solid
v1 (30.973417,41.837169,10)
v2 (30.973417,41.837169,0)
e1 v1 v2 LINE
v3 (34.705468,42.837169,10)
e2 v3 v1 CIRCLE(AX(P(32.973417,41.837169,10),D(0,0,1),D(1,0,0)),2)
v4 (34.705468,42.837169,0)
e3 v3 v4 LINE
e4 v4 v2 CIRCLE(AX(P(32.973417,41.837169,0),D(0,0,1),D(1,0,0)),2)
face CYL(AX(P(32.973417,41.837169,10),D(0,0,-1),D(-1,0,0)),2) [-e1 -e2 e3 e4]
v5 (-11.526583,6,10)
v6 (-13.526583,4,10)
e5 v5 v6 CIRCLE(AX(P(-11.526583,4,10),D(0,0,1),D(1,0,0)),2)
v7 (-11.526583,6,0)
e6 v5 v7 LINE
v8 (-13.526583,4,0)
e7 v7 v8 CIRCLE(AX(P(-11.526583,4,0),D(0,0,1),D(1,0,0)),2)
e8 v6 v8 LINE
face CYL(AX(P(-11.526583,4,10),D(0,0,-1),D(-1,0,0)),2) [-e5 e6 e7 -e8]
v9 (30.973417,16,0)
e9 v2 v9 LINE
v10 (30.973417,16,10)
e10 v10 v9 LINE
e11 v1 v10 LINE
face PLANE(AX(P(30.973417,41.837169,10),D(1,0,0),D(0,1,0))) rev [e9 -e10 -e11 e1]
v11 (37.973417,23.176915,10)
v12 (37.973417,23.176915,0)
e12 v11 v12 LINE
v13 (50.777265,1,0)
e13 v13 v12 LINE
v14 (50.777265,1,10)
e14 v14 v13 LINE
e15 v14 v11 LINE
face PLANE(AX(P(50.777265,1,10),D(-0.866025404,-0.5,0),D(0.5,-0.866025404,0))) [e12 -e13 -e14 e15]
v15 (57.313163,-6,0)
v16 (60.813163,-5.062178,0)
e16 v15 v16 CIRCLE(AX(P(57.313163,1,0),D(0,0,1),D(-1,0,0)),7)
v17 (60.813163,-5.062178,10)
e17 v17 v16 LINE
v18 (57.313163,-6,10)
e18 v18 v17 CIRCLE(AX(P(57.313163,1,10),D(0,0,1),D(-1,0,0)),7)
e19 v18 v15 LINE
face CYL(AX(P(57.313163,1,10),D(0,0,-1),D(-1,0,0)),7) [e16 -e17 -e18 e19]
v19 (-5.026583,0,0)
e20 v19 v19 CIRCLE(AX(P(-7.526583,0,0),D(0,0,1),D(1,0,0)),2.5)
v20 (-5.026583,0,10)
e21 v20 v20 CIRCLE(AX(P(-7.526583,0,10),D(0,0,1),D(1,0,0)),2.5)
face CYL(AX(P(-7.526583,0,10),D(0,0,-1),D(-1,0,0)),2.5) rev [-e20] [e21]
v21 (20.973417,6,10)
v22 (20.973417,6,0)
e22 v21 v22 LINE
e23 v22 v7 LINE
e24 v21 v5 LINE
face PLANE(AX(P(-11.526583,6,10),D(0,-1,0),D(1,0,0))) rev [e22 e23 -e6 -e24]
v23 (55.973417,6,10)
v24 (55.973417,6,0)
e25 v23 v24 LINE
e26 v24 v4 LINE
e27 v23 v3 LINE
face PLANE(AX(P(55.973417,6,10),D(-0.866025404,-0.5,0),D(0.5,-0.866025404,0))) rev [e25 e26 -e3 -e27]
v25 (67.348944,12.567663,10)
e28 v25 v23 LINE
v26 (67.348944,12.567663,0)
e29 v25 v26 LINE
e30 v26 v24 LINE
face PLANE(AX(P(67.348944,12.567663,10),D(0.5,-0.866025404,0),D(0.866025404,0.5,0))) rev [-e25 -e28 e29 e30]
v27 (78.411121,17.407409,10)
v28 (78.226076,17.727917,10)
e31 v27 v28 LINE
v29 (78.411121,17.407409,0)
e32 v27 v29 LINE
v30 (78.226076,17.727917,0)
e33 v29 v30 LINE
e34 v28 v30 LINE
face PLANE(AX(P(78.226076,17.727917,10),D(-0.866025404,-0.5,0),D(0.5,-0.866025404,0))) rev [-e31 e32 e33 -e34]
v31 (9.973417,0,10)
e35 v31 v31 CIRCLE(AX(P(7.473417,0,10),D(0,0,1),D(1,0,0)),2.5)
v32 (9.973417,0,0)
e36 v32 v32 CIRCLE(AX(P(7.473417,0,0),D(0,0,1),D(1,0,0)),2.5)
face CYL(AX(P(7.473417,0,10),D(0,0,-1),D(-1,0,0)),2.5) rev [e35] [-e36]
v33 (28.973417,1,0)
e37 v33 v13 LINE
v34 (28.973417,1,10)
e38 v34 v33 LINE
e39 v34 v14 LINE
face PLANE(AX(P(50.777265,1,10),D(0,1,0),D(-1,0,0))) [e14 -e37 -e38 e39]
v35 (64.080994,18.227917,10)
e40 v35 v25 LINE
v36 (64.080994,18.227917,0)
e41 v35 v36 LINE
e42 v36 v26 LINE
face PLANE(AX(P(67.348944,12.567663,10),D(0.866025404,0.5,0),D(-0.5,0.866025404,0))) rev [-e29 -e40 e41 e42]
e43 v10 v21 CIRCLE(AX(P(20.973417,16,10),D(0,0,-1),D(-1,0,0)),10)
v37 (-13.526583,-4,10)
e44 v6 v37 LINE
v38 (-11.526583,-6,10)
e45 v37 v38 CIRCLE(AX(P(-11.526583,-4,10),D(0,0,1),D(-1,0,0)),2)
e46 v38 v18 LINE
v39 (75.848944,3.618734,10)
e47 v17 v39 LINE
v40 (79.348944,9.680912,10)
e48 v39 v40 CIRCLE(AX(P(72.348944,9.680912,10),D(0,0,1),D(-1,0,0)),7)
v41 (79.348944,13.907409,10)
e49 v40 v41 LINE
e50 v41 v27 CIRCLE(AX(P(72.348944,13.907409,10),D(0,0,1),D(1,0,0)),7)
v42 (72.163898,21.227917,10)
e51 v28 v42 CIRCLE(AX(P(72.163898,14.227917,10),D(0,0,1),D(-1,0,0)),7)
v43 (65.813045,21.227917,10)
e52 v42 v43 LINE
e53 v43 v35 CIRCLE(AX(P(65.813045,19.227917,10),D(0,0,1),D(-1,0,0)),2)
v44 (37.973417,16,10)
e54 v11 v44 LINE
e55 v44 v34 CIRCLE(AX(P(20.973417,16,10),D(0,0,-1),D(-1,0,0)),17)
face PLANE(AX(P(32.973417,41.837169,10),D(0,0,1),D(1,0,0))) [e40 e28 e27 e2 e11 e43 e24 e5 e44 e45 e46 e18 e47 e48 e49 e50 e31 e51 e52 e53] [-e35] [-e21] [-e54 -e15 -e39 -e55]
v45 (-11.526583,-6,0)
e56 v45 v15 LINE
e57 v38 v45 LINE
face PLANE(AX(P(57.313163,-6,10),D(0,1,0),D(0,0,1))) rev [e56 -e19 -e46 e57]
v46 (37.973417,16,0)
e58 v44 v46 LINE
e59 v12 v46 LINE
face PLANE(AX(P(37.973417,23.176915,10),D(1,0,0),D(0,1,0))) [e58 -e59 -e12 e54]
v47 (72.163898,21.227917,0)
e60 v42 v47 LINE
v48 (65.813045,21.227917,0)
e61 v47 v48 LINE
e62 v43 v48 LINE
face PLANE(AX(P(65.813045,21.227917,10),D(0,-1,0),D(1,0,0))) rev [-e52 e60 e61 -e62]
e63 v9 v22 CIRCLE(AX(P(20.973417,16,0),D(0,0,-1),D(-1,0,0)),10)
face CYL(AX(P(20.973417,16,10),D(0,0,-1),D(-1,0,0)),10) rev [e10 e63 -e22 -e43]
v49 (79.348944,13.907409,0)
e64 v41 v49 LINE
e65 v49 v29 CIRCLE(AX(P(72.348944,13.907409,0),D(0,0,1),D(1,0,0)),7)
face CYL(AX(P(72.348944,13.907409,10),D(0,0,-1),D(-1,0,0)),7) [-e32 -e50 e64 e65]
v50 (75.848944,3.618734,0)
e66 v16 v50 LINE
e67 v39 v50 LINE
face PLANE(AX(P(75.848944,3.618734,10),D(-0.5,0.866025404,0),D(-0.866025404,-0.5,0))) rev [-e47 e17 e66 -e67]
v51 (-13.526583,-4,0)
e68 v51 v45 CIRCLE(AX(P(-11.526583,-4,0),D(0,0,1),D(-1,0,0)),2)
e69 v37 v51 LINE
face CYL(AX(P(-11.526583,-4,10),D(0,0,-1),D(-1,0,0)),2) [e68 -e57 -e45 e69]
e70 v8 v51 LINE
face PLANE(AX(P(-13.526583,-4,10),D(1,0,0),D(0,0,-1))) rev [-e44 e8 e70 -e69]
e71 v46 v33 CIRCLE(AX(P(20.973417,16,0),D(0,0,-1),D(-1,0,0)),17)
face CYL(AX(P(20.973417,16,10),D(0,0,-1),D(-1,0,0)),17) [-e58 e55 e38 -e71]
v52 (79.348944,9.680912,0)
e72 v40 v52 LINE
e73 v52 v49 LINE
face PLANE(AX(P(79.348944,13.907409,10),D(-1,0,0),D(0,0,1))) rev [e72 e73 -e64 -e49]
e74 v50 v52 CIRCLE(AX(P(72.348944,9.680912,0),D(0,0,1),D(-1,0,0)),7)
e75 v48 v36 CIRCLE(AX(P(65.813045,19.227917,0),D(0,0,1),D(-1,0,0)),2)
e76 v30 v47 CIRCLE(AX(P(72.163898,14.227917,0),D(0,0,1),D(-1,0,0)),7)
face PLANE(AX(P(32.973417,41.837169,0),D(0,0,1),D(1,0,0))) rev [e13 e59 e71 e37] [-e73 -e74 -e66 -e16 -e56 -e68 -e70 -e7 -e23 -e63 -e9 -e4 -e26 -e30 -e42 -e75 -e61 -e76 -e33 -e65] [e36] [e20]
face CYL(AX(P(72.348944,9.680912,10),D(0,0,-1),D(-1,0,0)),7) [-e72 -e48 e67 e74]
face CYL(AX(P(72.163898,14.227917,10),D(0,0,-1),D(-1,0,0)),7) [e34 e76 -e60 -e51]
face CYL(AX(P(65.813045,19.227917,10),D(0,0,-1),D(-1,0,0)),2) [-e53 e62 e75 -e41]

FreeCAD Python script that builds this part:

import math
import FreeCAD as App
import Part
import Sketcher
from FreeCAD import Vector
Q = App.Units.Quantity

doc = App.newDocument("Part")
body = doc.addObject("PartDesign::Body", "Body")

# Sketch on XY plane
sketch1 = body.newObject("Sketcher::SketchObject", "Sketch")
sketch1.AttachmentSupport = (doc.getObject("XY_Plane"), [""])
sketch1.MapMode = "FlatFace"
sketch1.addGeometry([
    Part.LineSegment(Vector(20.97, 6, 0), Vector(-11.53, 6, 0)),  # 0
    Part.ArcOfCircle(Part.Circle(Vector(-11.53, 4, 0), Vector(0, 0, 1), 2), math.radians(90), math.radians(180)),  # 1
    Part.LineSegment(Vector(-13.53, 4, 0), Vector(-13.53, -4, 0)),  # 2
    Part.ArcOfCircle(Part.Circle(Vector(-11.53, -4, 0), Vector(0, 0, 1), 2), math.radians(180), math.radians(270)),  # 3
    Part.LineSegment(Vector(-11.53, -6, 0), Vector(57.31, -6, 0)),  # 4
    Part.ArcOfCircle(Part.Circle(Vector(57.31, 1, 0), Vector(0, 0, 1), 7), math.radians(-90), math.radians(-60)),  # 5
    Part.LineSegment(Vector(60.81, -5.06, 0), Vector(75.85, 3.62, 0)),  # 6
    Part.ArcOfCircle(Part.Circle(Vector(72.35, 9.68, 0), Vector(0, 0, 1), 7), math.radians(-60), math.radians(0)),  # 7
    Part.LineSegment(Vector(79.35, 9.68, 0), Vector(79.35, 13.91, 0)),  # 8
    Part.ArcOfCircle(Part.Circle(Vector(72.35, 13.91, 0), Vector(0, 0, 1), 7), math.radians(0), math.radians(30)),  # 9
    Part.LineSegment(Vector(78.41, 17.41, 0), Vector(78.23, 17.73, 0)),  # 10
    Part.ArcOfCircle(Part.Circle(Vector(72.16, 14.23, 0), Vector(0, 0, 1), 7), math.radians(30), math.radians(90)),  # 11
    Part.LineSegment(Vector(72.16, 21.23, 0), Vector(65.81, 21.23, 0)),  # 12
    Part.ArcOfCircle(Part.Circle(Vector(65.81, 19.23, 0), Vector(0, 0, 1), 2), math.radians(90), math.radians(210)),  # 13
    Part.LineSegment(Vector(64.08, 18.23, 0), Vector(67.35, 12.57, 0)),  # 14
    Part.LineSegment(Vector(67.35, 12.57, 0), Vector(55.97, 6, 0)),  # 15
    Part.LineSegment(Vector(55.97, 6, 0), Vector(34.71, 42.84, 0)),  # 16
    Part.ArcOfCircle(Part.Circle(Vector(32.97, 41.84, 0), Vector(0, 0, 1), 2), math.radians(30), math.radians(180)),  # 17
    Part.LineSegment(Vector(30.97, 41.84, 0), Vector(30.97, 16, 0)),  # 18
    Part.ArcOfCircle(Part.Circle(Vector(20.97, 16, 0), Vector(0, 0, 1), 10), math.radians(-90), math.radians(0)),  # 19
    Part.Circle(Vector(7.47, 0, 0), Vector(0, 0, 1), 2.5),  # 20
    Part.Circle(Vector(-7.53, 0, 0), Vector(0, 0, 1), 2.5),  # 21
    Part.LineSegment(Vector(50.78, 1, 0), Vector(28.97, 1, 0)),  # 22
    Part.ArcOfCircle(Part.Circle(Vector(20.97, 16, 0), Vector(0, 0, 1), 17), math.radians(-62), math.radians(0)),  # 23
    Part.LineSegment(Vector(37.97, 16, 0), Vector(37.97, 23.18, 0)),  # 24
    Part.LineSegment(Vector(37.97, 23.18, 0), Vector(50.78, 1, 0)),  # 25
], False)
sketch1.addConstraint([
    Sketcher.Constraint("Tangent", 0, 2, 1, 1),
    Sketcher.Constraint("Tangent", 1, 2, 2, 1),
    Sketcher.Constraint("Tangent", 2, 2, 3, 1),
    Sketcher.Constraint("Tangent", 3, 2, 4, 1),
    Sketcher.Constraint("Tangent", 4, 2, 5, 1),
    Sketcher.Constraint("Tangent", 5, 2, 6, 1),
    Sketcher.Constraint("Tangent", 6, 2, 7, 1),
    Sketcher.Constraint("Tangent", 7, 2, 8, 1),
    Sketcher.Constraint("Tangent", 8, 2, 9, 1),
    Sketcher.Constraint("Tangent", 9, 2, 10, 1),
    Sketcher.Constraint("Tangent", 10, 2, 11, 1),
    Sketcher.Constraint("Tangent", 11, 2, 12, 1),
    Sketcher.Constraint("Tangent", 12, 2, 13, 1),
    Sketcher.Constraint("Tangent", 13, 2, 14, 1),
    Sketcher.Constraint("Coincident", 14, 2, 15, 1),
    Sketcher.Constraint("Coincident", 15, 2, 16, 1),
    Sketcher.Constraint("Tangent", 16, 2, 17, 1),
    Sketcher.Constraint("Tangent", 17, 2, 18, 1),
    Sketcher.Constraint("Tangent", 18, 2, 19, 2),
    Sketcher.Constraint("Tangent", 19, 1, 0, 1),
    Sketcher.Constraint("Coincident", 22, 2, 23, 1),
    Sketcher.Constraint("Tangent", 23, 2, 24, 1),
    Sketcher.Constraint("Coincident", 24, 2, 25, 1),
    Sketcher.Constraint("Coincident", 25, 2, 22, 1),
    Sketcher.Constraint("Horizontal", 0),
    Sketcher.Constraint("Vertical", 2),
    Sketcher.Constraint("Horizontal", 4),
    Sketcher.Constraint("Vertical", 8),
    Sketcher.Constraint("Horizontal", 12),
    Sketcher.Constraint("Vertical", 18),
    Sketcher.Constraint("Horizontal", 22),
    Sketcher.Constraint("Vertical", 24),
    Sketcher.Constraint("Coincident", 23, 3, 19, 3),
    Sketcher.Constraint("Equal", 1, 3),
    Sketcher.Constraint("Equal", 5, 7),
    Sketcher.Constraint("Equal", 7, 9),
    Sketcher.Constraint("Equal", 9, 11),
    Sketcher.Constraint("Equal", 3, 13),
    Sketcher.Constraint("Equal", 13, 17),
    Sketcher.Constraint("Equal", 20, 21),
    Sketcher.Constraint("PointOnObject", 20, 3, -1),
    Sketcher.Constraint("PointOnObject", 21, 3, -1),
    Sketcher.Constraint("Perpendicular", 6, 10),
    Sketcher.Constraint("Parallel", 10, 14),
    Sketcher.Constraint("Perpendicular", 14, 15),
    Sketcher.Constraint("Perpendicular", 15, 16),
    Sketcher.Constraint("Parallel", 16, 25),
    Sketcher.Constraint("Horizontal", 0, 2, 15, 2),
    Sketcher.Constraint("Horizontal", 5, 3, 22, 2),
    Sketcher.Constraint("Diameter", 20, Q("5 mm")),
    Sketcher.Constraint("Radius", 1, Q("2 mm")),
    Sketcher.Constraint("Radius", 5, Q("7 mm")),
    Sketcher.Constraint("Radius", 19, Q("10 mm")),
    Sketcher.Constraint("Radius", 23, Q("17 mm")),
    Sketcher.Constraint("DistanceY", 2, 2, 2, 1, Q("8 mm")),
    Sketcher.Constraint("Angle", 6, Q("30 deg")),
    Sketcher.Constraint("DistanceX", 0, 2, 0, 1, Q("32.5 mm")),
    Sketcher.Constraint("DistanceY", -1, 1, 1, 3, Q("4 mm")),
    Sketcher.Constraint("DistanceX", 1, 3, 20, 3, Q("19 mm")),
    Sketcher.Constraint("DistanceX", 1, 3, 21, 3, Q("4 mm")),
    Sketcher.Constraint("DistanceX", 14, 2, 9, 3, Q("5 mm")),
    Sketcher.Constraint("DistanceX", 18, 2, 15, 2, Q("25 mm")),
    Sketcher.Constraint("Distance", 14, Q("6.535898 mm")),
    Sketcher.Constraint("DistanceX", -1, 1, 11, 3, Q("72.163898 mm")),
    Sketcher.Constraint("DistanceX", 25, 2, 5, 3, Q("6.535898 mm")),
    Sketcher.Constraint("Distance", 10, Q("0.370091 mm")),
    Sketcher.Constraint("DistanceX", 4, 1, 4, 2, Q("68.839746 mm")),
    Sketcher.Constraint("DistanceY", -1, 1, 7, 3, Q("9.680912 mm")),
])
pad1 = body.newObject("PartDesign::Pad", "Pad")
pad1.Profile = sketch1
pad1.Length = 10

doc.recompute()
